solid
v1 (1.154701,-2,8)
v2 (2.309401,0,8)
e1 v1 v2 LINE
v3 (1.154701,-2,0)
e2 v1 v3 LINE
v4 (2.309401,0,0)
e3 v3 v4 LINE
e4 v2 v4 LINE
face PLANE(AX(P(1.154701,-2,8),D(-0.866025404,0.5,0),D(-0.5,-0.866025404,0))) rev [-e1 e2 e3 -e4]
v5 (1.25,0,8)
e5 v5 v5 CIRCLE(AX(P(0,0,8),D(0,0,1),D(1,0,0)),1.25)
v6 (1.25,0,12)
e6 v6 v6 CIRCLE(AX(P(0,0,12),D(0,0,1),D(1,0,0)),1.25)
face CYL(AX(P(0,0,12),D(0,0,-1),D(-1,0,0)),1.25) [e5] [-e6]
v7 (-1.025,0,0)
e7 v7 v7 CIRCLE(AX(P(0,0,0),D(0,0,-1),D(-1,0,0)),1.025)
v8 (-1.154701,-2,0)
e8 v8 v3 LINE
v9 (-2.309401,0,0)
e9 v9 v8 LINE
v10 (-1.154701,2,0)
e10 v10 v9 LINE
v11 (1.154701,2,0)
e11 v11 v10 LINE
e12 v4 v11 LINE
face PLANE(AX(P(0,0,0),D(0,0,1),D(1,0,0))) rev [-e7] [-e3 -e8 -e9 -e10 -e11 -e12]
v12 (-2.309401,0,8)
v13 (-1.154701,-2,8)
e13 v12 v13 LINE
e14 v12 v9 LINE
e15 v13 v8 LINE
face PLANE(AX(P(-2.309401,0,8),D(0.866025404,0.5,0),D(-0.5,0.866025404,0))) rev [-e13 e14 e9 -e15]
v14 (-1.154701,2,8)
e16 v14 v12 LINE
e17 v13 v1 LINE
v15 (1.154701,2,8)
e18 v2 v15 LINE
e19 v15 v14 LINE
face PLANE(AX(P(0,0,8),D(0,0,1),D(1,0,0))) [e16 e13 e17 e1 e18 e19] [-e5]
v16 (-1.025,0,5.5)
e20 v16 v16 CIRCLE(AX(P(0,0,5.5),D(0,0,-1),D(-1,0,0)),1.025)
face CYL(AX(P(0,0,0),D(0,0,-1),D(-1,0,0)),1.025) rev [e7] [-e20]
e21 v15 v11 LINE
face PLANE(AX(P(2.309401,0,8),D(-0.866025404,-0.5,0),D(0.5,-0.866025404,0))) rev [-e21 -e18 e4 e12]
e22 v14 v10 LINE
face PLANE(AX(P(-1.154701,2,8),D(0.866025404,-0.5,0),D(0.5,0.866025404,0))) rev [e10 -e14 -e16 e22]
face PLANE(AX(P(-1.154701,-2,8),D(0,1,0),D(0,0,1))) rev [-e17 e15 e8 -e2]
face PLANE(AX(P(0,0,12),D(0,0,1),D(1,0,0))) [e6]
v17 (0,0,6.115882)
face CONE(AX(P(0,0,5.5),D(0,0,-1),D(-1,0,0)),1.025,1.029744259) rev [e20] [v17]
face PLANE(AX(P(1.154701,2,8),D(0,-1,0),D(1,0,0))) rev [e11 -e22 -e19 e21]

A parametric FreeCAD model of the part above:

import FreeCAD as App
import Part
import Sketcher
from FreeCAD import Vector
Q = App.Units.Quantity


def add_polygon(sketch, points):
    """Adds a closed chain of lines whose ends are joined by coincident constraints."""
    first, n = sketch.GeometryCount, len(points)
    for a, b in zip(points, points[1:] + points[:1]):
        sketch.addGeometry(Part.LineSegment(App.Vector(*a, 0), App.Vector(*b, 0)), False)
    for i in range(n):
        sketch.addConstraint(Sketcher.Constraint("Coincident", first + i, 2, first + (i + 1) % n, 1))

doc = App.newDocument("Part")
params = doc.addObject("Spreadsheet::Sheet", "Params")
for row, (alias, value) in enumerate([
    ("pad1_length", "8 mm"),
    ("sketch2_diameter", "2.5 mm"),
    ("pad2_length", "4 mm"),
    ("sketch3_diameter", "2.05 mm"),
    ("hole_diameter", "2.05 mm"),
    ("hole_depth", "5.5 mm"),
], start=1):
    params.set(f"A{row}", alias)
    params.set(f"B{row}", "=" + value)
    params.setAlias(f"B{row}", alias)

body = doc.addObject("PartDesign::Body", "Body")

# Sketch on XY plane
sketch1 = body.newObject("Sketcher::SketchObject", "Sketch")
sketch1.AttachmentSupport = (doc.getObject("XY_Plane"), [""])
sketch1.MapMode = "FlatFace"
add_polygon(sketch1, [(-1.2, -2), (1.2, -2), (2.3, 0), (1.2, 2), (-1.2, 2), (-2.3, 0)])  # lines 0-5
sketch1.addConstraint([
    Sketcher.Constraint("Horizontal", 0),
    Sketcher.Constraint("Horizontal", 3),
    Sketcher.Constraint("Symmetric", 0, 2, 3, 2, -1, 1),
    Sketcher.Constraint("Symmetric", 1, 2, 4, 2, -1, 1),
    Sketcher.Constraint("PointOnObject", 1, 2, -1),
    Sketcher.Constraint("Parallel", 2, 5),
    Sketcher.Constraint("Vertical", 0, 2, 2, 2),
    Sketcher.Constraint("Angle", 1, Q("60 deg")),
    Sketcher.Constraint("DistanceY", 0, 2, -1, 1, Q("2 mm")),
    Sketcher.Constraint("DistanceX", 0, 1, 0, 2, Q("2.309401 mm")),
])
pad1 = body.newObject("PartDesign::Pad", "Pad")
pad1.Profile = sketch1
pad1.setExpression("Length", "Params.pad1_length")

# Sketch on XY plane
sketch2 = body.newObject("Sketcher::SketchObject", "Sketch001")
sketch2.AttachmentSupport = (doc.getObject("XY_Plane"), [""])
sketch2.MapMode = "FlatFace"
sketch2.AttachmentOffset = App.Placement(Vector(0, 0, 8), App.Rotation())
sketch2.addGeometry(Part.Circle(Vector(0, 0, 0), Vector(0, 0, 1), 1.2), False)
sketch2.addConstraint([
    Sketcher.Constraint("Coincident", 0, 3, -1, 1),
    Sketcher.Constraint("Diameter", 0, Q("2.5 mm")),
])
sketch2.setExpression("Constraints[1]", "Params.sketch2_diameter")
pad2 = body.newObject("PartDesign::Pad", "Pad001")
pad2.Profile = sketch2
pad2.setExpression("Length", "Params.pad2_length")

# Sketch on XY plane
sketch3 = body.newObject("Sketcher::SketchObject", "Sketch002")
sketch3.AttachmentSupport = (doc.getObject("XY_Plane"), [""])
sketch3.MapMode = "FlatFace"
sketch3.addGeometry(Part.Circle(Vector(0, 0, 0), Vector(0, 0, 1), 1), False)
sketch3.addConstraint([
    Sketcher.Constraint("Coincident", 0, 3, -1, 1),
    Sketcher.Constraint("Diameter", 0, Q("2.05 mm")),
])
sketch3.setExpression("Constraints[1]", "Params.sketch3_diameter")
doc.recompute()
hole = body.newObject("PartDesign::Hole", "Hole")
hole.Profile = sketch3
hole.ThreadType = "None"
hole.setExpression("Diameter", "Params.hole_diameter")
hole.DepthType = "Dimension"
hole.setExpression("Depth", "Params.hole_depth")
hole.DrillPoint = "Angled"
hole.DrillPointAngle = 118
hole.Reversed = True

doc.recompute()
